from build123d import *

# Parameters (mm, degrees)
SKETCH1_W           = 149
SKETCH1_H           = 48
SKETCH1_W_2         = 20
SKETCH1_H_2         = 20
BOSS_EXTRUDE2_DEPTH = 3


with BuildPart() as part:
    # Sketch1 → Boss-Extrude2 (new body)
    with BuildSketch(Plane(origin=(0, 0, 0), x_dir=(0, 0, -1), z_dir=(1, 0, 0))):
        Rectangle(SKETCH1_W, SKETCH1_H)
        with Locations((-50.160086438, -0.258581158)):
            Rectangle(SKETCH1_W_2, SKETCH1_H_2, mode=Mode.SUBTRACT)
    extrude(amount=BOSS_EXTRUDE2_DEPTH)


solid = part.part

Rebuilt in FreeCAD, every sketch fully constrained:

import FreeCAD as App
import Part
import Sketcher
Q = App.Units.Quantity


def add_polygon(sketch, points):
    """Adds a closed chain of lines whose ends are joined by coincident constraints."""
    first, n = sketch.GeometryCount, len(points)
    for a, b in zip(points, points[1:] + points[:1]):
        sketch.addGeometry(Part.LineSegment(App.Vector(*a, 0), App.Vector(*b, 0)), False)
    for i in range(n):
        sketch.addConstraint(Sketcher.Constraint("Coincident", first + i, 2, first + (i + 1) % n, 1))

doc = App.newDocument("Part")
body = doc.addObject("PartDesign::Body", "Body")

# Sketch on YZ plane
sketch1 = doc.addObject("Sketcher::SketchObject", "Sketch")
body.addObject(sketch1)
sketch1.AttachmentSupport = (doc.YZ_Plane, [""])
sketch1.MapMode = "FlatFace"
add_polygon(sketch1, [(24, 74), (-24, 74), (-24, -74), (24, -74)])  # lines 0-3
add_polygon(sketch1, [(-10, 40), (-10, 60), (10, 60), (10, 40)])  # lines 4-7
sketch1.addConstraint([
    Sketcher.Constraint("Horizontal", 0),
    Sketcher.Constraint("Vertical", 1),
    Sketcher.Constraint("Horizontal", 2),
    Sketcher.Constraint("Vertical", 3),
    Sketcher.Constraint("Vertical", 4),
    Sketcher.Constraint("Horizontal", 5),
    Sketcher.Constraint("Vertical", 6),
    Sketcher.Constraint("Horizontal", 7),
    Sketcher.Constraint("Symmetric", 0, 2, 2, 2, -1, 1),
    Sketcher.Constraint("Equal", 7, 4),
    Sketcher.Constraint("DistanceX", 0, 2, 0, 1, Q("48 mm")),
    Sketcher.Constraint("DistanceX", 5, 1, 5, 2, Q("20 mm")),
    Sketcher.Constraint("DistanceY", 1, 2, 1, 1, Q("149 mm")),
    Sketcher.Constraint("DistanceX", 4, 2, -1, 1, Q("10.258581 mm")),
    Sketcher.Constraint("DistanceY", -1, 1, 4, 2, Q("60.160086 mm")),
])
pad1 = doc.addObject("PartDesign::Pad", "Pad")
body.addObject(pad1)
pad1.Profile = sketch1
pad1.Length = 3

doc.recompute()
